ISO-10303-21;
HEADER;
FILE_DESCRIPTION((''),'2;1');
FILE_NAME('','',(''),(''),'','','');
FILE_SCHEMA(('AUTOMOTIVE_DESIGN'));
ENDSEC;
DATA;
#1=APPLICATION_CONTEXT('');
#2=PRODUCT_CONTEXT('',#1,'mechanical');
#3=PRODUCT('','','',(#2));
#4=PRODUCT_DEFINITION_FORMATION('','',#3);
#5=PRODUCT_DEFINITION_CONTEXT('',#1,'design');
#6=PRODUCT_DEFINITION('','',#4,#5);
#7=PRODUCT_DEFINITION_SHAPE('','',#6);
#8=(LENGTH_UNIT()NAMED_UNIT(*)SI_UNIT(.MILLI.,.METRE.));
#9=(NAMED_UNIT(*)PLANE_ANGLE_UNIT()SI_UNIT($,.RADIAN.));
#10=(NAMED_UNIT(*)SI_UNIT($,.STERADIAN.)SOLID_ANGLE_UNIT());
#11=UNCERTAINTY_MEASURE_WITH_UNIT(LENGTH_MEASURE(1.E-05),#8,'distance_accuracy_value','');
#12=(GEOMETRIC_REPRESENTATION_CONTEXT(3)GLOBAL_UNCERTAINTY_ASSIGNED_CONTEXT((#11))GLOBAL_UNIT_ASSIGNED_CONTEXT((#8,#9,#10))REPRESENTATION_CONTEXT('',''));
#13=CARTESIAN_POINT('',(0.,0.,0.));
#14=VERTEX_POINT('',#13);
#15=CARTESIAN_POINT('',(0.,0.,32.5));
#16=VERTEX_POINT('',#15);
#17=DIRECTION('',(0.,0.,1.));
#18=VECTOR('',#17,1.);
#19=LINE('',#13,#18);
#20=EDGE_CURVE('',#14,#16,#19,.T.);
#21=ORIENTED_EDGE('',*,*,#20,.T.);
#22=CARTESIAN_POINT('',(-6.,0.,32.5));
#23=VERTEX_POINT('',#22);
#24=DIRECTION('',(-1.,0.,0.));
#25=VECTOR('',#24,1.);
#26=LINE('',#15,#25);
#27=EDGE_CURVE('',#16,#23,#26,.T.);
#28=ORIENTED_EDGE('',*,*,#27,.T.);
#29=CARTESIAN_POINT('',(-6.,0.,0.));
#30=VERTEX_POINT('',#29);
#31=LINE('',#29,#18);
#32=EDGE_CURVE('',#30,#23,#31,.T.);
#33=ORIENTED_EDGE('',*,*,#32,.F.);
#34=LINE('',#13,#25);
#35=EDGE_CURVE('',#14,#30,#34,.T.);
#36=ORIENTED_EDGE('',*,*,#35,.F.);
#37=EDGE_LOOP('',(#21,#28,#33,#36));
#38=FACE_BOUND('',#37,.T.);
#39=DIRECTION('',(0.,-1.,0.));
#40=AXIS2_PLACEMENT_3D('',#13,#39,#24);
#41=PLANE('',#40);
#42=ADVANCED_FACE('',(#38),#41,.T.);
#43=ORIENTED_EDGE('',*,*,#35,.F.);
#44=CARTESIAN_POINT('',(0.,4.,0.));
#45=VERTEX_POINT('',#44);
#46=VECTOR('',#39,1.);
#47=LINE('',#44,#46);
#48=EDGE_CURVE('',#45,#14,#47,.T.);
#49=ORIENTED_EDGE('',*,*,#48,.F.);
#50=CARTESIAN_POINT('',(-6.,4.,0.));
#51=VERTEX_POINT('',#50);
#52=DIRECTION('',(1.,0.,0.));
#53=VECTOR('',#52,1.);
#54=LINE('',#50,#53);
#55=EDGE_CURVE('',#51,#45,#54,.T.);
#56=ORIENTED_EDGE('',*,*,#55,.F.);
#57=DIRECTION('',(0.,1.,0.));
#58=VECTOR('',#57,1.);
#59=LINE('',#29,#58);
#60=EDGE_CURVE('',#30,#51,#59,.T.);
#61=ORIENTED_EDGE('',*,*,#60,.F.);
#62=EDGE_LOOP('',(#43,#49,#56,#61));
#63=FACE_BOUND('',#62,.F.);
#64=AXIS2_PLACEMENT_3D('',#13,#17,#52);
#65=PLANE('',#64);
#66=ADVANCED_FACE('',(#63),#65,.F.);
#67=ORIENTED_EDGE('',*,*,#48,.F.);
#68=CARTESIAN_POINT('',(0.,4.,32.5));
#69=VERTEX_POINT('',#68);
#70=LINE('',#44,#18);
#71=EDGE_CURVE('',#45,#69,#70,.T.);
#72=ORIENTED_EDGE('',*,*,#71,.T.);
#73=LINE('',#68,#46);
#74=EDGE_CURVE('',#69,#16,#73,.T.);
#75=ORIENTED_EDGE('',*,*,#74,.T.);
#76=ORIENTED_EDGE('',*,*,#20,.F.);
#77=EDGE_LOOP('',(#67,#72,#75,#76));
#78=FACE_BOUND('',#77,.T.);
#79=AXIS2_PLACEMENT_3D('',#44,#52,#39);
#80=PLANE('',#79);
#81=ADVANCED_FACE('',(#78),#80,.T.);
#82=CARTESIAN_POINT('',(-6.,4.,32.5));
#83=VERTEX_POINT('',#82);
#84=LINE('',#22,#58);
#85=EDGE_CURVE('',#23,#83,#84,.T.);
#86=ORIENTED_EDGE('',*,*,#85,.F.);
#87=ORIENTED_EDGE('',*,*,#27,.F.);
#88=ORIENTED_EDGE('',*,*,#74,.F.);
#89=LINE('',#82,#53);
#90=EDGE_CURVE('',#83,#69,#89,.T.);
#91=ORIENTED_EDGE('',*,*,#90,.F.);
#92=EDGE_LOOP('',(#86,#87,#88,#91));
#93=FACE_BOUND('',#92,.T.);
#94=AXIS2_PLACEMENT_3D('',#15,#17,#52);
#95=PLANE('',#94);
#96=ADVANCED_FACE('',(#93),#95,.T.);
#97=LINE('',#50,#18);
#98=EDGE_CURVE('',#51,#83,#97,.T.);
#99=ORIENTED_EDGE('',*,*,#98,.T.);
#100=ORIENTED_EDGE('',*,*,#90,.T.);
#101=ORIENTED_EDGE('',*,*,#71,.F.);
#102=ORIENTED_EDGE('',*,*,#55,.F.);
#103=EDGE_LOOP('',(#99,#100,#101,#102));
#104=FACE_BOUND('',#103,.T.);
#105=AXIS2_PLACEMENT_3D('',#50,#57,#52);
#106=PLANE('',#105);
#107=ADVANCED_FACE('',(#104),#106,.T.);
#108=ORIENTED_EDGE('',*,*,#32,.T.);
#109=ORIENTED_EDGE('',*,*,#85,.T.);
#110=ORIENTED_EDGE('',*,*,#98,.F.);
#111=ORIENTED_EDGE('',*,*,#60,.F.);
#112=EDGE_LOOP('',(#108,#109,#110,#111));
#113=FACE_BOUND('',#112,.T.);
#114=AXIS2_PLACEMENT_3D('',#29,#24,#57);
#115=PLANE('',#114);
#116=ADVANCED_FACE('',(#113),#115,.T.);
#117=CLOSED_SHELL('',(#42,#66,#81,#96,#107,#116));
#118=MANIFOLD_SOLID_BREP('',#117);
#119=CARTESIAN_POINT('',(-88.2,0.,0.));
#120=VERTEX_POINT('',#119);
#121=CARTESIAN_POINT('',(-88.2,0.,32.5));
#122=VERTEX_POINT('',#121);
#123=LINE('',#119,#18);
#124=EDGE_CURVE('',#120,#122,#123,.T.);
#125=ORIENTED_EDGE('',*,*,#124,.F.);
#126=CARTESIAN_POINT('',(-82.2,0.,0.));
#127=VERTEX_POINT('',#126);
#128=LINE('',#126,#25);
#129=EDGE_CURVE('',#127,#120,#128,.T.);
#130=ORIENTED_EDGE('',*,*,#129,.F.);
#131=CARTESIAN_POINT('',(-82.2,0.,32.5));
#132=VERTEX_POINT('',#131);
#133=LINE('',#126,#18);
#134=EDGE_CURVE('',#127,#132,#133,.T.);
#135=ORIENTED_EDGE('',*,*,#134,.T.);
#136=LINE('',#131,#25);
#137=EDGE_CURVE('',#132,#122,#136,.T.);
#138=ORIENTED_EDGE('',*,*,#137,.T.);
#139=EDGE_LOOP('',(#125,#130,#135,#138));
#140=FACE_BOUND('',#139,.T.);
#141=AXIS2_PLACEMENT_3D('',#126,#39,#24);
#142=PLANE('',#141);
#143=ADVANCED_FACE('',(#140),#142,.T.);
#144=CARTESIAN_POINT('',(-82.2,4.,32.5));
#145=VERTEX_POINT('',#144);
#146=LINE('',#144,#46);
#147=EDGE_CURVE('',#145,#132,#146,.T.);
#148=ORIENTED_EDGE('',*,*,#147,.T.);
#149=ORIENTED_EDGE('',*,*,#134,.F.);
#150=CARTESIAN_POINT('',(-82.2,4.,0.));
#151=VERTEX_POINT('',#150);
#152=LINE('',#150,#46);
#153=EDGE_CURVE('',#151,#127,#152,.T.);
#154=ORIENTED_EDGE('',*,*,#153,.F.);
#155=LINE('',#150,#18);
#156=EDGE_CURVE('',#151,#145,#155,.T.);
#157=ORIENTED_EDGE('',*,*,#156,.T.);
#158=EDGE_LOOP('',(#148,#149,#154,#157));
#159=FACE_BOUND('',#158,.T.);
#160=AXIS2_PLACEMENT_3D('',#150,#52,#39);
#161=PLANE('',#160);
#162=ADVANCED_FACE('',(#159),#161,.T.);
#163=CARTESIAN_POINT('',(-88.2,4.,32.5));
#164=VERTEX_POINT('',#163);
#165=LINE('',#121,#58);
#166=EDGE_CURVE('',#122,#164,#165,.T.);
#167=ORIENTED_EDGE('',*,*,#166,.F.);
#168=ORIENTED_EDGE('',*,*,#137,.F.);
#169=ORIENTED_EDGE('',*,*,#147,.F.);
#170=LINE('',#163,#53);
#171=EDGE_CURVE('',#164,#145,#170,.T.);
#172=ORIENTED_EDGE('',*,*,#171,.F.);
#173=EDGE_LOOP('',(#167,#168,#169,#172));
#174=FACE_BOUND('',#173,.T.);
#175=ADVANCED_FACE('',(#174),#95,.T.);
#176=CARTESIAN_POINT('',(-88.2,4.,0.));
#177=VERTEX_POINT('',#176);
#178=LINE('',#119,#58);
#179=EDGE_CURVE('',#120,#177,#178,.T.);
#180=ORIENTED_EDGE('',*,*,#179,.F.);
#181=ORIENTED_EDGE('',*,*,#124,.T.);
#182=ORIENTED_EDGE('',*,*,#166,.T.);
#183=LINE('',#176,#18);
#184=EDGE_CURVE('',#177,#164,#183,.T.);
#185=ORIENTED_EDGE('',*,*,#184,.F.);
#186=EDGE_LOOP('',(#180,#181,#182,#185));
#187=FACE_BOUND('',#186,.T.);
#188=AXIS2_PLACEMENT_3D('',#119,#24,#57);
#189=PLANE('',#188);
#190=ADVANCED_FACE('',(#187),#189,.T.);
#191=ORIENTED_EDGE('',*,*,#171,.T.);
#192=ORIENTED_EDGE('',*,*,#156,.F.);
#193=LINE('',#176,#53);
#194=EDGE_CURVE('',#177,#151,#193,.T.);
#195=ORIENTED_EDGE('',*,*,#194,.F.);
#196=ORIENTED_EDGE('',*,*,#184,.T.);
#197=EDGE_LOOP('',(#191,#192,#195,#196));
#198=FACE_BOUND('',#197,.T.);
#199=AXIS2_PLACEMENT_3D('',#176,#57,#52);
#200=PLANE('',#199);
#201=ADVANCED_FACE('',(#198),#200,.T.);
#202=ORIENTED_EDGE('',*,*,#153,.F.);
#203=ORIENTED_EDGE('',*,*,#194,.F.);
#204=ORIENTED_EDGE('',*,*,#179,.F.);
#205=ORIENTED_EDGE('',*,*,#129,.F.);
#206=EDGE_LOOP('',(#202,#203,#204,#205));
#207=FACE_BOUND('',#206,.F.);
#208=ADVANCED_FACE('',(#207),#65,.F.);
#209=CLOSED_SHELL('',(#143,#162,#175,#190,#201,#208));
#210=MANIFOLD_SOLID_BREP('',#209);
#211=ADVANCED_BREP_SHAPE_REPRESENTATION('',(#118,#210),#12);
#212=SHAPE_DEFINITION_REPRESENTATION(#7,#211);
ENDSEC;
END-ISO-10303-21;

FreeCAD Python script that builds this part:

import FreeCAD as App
import Part
import Sketcher
from FreeCAD import Vector
Q = App.Units.Quantity

doc = App.newDocument("Part")
body = doc.addObject("PartDesign::Body", "Body")
body.AllowCompound = True

# Sketch on XY plane
sketch1 = body.newObject("Sketcher::SketchObject", "Sketch")
sketch1.AttachmentSupport = (doc.getObject("XY_Plane"), [""])
sketch1.MapMode = "FlatFace"
sketch1.addGeometry([
    Part.LineSegment(Vector(-82.2, 4, 0), Vector(-88.2, 4, 0)),  # 0
    Part.LineSegment(Vector(-88.2, 4, 0), Vector(-88.2, 0, 0)),  # 1
    Part.LineSegment(Vector(-88.2, 0, 0), Vector(-82.2, 0, 0)),  # 2
    Part.LineSegment(Vector(-82.2, 0, 0), Vector(-82.2, 4, 0)),  # 3
    Part.LineSegment(Vector(0, 4, 0), Vector(-6, 4, 0)),  # 4
    Part.LineSegment(Vector(-6, 4, 0), Vector(-6, 0, 0)),  # 5
    Part.LineSegment(Vector(-6, 0, 0), Vector(0, 0, 0)),  # 6
    Part.LineSegment(Vector(0, 0, 0), Vector(0, 4, 0)),  # 7
], False)
sketch1.addConstraint([
    Sketcher.Constraint("Coincident", 0, 2, 1, 1),
    Sketcher.Constraint("Coincident", 1, 2, 2, 1),
    Sketcher.Constraint("Coincident", 2, 2, 3, 1),
    Sketcher.Constraint("Coincident", 3, 2, 0, 1),
    Sketcher.Constraint("Coincident", 4, 2, 5, 1),
    Sketcher.Constraint("Coincident", 5, 2, 6, 1),
    Sketcher.Constraint("Coincident", 6, 2, 7, 1),
    Sketcher.Constraint("Coincident", 7, 2, 4, 1),
    Sketcher.Constraint("Horizontal", 0),
    Sketcher.Constraint("Vertical", 1),
    Sketcher.Constraint("Horizontal", 2),
    Sketcher.Constraint("Vertical", 3),
    Sketcher.Constraint("Horizontal", 4),
    Sketcher.Constraint("Vertical", 5),
    Sketcher.Constraint("Horizontal", 6),
    Sketcher.Constraint("Vertical", 7),
    Sketcher.Constraint("Coincident", 6, 2, -1, 1),
    Sketcher.Constraint("PointOnObject", 1, 2, -1),
    Sketcher.Constraint("Horizontal", 3, 2, 4, 2),
    Sketcher.Constraint("Equal", 2, 4),
    Sketcher.Constraint("DistanceX", 0, 2, 0, 1, Q("6 mm")),
    Sketcher.Constraint("DistanceY", 1, 2, 1, 1, Q("4 mm")),
    Sketcher.Constraint("DistanceX", 0, 2, -1, 1, Q("88.2 mm")),
])
pad1 = body.newObject("PartDesign::Pad", "Pad")
pad1.Profile = sketch1
pad1.Length = 32.5

doc.recompute()
